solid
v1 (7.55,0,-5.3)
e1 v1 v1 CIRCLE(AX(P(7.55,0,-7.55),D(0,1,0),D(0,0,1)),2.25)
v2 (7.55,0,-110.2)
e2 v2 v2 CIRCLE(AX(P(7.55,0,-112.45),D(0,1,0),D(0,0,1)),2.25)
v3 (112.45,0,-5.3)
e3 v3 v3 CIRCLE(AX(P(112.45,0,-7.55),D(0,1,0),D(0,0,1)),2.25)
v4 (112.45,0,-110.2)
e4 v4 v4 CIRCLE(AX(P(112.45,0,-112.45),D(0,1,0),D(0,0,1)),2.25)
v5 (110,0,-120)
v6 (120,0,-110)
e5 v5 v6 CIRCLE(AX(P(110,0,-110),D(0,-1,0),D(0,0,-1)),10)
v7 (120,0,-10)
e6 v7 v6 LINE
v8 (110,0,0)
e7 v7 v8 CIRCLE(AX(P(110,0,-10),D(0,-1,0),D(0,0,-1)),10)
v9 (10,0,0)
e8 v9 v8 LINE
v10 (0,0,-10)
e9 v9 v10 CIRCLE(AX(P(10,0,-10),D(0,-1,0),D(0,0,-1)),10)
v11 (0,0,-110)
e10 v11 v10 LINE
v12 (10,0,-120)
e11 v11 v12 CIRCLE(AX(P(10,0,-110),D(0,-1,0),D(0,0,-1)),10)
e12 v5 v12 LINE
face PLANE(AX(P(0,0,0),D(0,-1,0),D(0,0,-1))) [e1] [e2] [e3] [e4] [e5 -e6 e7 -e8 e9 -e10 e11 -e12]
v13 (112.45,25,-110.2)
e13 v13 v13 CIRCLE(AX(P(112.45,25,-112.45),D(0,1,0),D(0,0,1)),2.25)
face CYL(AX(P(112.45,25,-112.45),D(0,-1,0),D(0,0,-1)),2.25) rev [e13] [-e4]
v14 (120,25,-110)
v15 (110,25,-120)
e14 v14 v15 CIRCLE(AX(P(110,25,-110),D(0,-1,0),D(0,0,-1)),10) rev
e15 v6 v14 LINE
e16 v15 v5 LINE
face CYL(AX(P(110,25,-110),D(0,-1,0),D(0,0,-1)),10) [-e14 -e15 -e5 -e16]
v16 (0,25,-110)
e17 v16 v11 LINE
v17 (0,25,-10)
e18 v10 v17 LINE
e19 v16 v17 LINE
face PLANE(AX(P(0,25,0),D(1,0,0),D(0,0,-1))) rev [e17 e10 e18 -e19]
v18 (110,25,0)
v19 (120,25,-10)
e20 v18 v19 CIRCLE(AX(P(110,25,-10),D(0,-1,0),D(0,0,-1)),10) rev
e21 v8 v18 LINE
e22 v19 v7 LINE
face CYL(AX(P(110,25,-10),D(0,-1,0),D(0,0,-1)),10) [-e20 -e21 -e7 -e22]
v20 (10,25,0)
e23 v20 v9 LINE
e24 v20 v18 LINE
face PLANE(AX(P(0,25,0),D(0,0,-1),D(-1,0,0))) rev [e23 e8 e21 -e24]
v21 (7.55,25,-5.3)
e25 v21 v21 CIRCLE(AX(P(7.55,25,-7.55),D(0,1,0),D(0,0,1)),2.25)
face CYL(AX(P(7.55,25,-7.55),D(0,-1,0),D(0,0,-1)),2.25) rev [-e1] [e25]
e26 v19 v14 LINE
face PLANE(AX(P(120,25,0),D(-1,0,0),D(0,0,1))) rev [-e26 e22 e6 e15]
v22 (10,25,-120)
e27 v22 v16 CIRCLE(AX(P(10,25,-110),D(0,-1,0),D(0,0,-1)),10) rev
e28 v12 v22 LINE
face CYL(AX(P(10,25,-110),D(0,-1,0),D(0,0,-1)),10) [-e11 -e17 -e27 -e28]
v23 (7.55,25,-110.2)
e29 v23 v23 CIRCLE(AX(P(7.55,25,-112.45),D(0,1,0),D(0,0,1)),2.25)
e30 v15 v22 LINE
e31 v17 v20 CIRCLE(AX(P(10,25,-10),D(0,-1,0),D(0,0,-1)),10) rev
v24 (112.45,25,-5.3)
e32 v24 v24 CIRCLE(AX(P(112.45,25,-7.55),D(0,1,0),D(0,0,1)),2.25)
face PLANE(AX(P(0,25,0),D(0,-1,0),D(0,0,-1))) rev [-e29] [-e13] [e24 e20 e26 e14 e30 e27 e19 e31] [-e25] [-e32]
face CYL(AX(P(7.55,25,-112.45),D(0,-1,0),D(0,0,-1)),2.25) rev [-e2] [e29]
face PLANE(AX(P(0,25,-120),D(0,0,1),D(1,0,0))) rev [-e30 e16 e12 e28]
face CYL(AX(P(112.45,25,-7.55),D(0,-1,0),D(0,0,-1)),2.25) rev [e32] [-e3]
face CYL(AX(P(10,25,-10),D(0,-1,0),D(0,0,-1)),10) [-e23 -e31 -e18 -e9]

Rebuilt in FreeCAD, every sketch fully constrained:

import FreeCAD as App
import Part
import Sketcher

V = App.Vector


def edges_at(feature, points):
    """Names of the edges that pass closest to the given points."""
    edges = feature.Shape.Edges
    near = lambda p: min(range(len(edges)), key=lambda i: edges[i].distToShape(Part.Vertex(*p))[0])
    return sorted({f"Edge{near(p) + 1}" for p in points})

doc = App.newDocument("Part")
params = doc.addObject("Spreadsheet::Sheet", "Params")
for row, (alias, value) in enumerate([
    ("sketch1_diameter", "4.5 mm"),
    ("sketch1_width", "120 mm"),
    ("pad1_length", "25 mm"),
    ("fillet_radius", "10 mm"),
], start=1):
    params.set(f"A{row}", alias)
    params.set(f"B{row}", "=" + value)
    params.setAlias(f"B{row}", alias)

body = doc.addObject("PartDesign::Body", "Body")

sketch1 = body.newObject("Sketcher::SketchObject", "Sketch")
sketch1.AttachmentSupport = (doc.getObject("XZ_Plane"), [""])
sketch1.MapMode = "FlatFace"
sketch1.addGeometry([
    Part.LineSegment(V(0, -120, 0), V(0, 0, 0)),
    Part.LineSegment(V(0, 0, 0), V(120, 0, 0)),
    Part.LineSegment(V(120, 0, 0), V(120, -120, 0)),
    Part.LineSegment(V(120, -120, 0), V(0, -120, 0)),
    Part.Circle(V(7.5, -7.5, 0), V(0, 0, 1), 2.2),
    Part.Circle(V(112.5, -7.5, 0), V(0, 0, 1), 2.2),
    Part.Circle(V(7.5, -112.5, 0), V(0, 0, 1), 2.2),
    Part.Circle(V(112.5, -112.5, 0), V(0, 0, 1), 2.2),
], False)
sketch1.addConstraint([
    Sketcher.Constraint("Coincident", 0, 2, 1, 1),
    Sketcher.Constraint("Coincident", 1, 2, 2, 1),
    Sketcher.Constraint("Coincident", 2, 2, 3, 1),
    Sketcher.Constraint("Coincident", 3, 2, 0, 1),
    Sketcher.Constraint("Vertical", 0),
    Sketcher.Constraint("Horizontal", 1),
    Sketcher.Constraint("Vertical", 2),
    Sketcher.Constraint("Horizontal", 3),
    Sketcher.Constraint("Coincident", 0, 2, -1, 1),
    Sketcher.Constraint("Equal", 4, 5),
    Sketcher.Constraint("Equal", 5, 6),
    Sketcher.Constraint("Equal", 6, 7),
    Sketcher.Constraint("Horizontal", 4, 3, 5, 3),
    Sketcher.Constraint("Horizontal", 6, 3, 7, 3),
    Sketcher.Constraint("Vertical", 4, 3, 6, 3),
    Sketcher.Constraint("Vertical", 5, 3, 7, 3),
    Sketcher.Constraint("Equal", 3, 0),
    Sketcher.Constraint("Diameter", 4, 4.5),
    Sketcher.Constraint("DistanceX", 1, 1, 1, 2, 120.0),
    Sketcher.Constraint("DistanceX", 4, 3, 5, 3, 104.9),
    Sketcher.Constraint("DistanceY", 6, 3, 4, 3, 104.9),
    Sketcher.Constraint("DistanceX", -1, 1, 4, 3, 7.55),
    Sketcher.Constraint("DistanceY", 4, 3, -1, 1, 7.55),
])
sketch1.setExpression("Constraints[17]", "Params.sketch1_diameter")
sketch1.setExpression("Constraints[18]", "Params.sketch1_width")
pad1 = body.newObject("PartDesign::Pad", "Pad")
pad1.Profile = sketch1
pad1.setExpression("Length", "Params.pad1_length")
pad1.Reversed = True
doc.recompute()

fillet = body.newObject("PartDesign::Fillet", "Fillet")
fillet.Base = (pad1, edges_at(pad1, [
    (0, 12.5, -120),
    (120, 12.5, -120),
    (120, 12.5, 0),
    (0, 12.5, 0),
]))
fillet.setExpression("Radius", "Params.fillet_radius")

doc.recompute()
